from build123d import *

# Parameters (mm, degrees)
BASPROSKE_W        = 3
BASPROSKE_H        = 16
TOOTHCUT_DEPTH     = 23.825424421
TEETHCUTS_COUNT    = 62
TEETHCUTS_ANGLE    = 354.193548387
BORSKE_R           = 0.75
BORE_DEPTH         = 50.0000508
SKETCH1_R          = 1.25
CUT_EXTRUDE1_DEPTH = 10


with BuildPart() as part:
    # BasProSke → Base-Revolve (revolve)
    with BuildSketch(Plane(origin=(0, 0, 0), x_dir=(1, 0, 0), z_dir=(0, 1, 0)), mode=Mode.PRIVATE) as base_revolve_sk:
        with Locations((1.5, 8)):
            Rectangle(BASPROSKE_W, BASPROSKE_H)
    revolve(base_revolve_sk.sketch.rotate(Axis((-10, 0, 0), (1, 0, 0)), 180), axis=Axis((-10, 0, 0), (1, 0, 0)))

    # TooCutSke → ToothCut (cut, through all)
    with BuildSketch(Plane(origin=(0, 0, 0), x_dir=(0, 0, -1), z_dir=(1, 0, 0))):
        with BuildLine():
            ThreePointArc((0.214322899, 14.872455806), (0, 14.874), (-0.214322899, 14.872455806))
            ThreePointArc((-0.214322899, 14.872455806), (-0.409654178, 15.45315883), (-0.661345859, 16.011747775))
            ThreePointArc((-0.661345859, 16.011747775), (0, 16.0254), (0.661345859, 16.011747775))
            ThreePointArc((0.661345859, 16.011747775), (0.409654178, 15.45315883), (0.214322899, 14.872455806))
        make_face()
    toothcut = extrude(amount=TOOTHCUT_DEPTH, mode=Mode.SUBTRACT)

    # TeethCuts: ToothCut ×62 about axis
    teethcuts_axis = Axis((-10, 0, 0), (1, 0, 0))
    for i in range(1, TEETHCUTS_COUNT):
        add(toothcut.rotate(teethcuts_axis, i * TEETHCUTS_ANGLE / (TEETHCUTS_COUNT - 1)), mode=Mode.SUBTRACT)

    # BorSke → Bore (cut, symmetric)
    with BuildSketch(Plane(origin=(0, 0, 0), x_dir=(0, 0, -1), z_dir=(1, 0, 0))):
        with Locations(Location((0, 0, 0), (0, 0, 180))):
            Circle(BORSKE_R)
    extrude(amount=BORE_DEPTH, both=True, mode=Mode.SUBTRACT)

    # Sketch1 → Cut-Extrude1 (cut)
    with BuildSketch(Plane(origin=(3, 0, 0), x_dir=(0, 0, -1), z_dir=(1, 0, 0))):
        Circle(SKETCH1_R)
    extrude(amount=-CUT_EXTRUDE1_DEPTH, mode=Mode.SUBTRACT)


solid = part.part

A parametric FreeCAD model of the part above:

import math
import FreeCAD as App
import Part
import Sketcher
from FreeCAD import Vector

doc = App.newDocument("Part")
params = doc.addObject("Spreadsheet::Sheet", "Params")
for row, (alias, value) in enumerate([
    ("sketch1_width", "3 mm"),
    ("sketch1_height", "16 mm"),
    ("revolution_angle", "360 deg"),
    ("sketch2_radius", "6.2 mm"),
    ("sketch3_diameter", "1.5 mm"),
    ("pocket2_length", "100.000102 mm"),
    ("sketch4_diameter", "2.5 mm"),
    ("pocket3_length", "10 mm"),
], start=1):
    params.set(f"A{row}", alias)
    params.set(f"B{row}", "=" + value)
    params.setAlias(f"B{row}", alias)

body = doc.addObject("PartDesign::Body", "Body")

# Sketch on XZ plane
sketch1 = body.newObject("Sketcher::SketchObject", "Sketch")
sketch1.AttachmentSupport = (doc.getObject("XZ_Plane"), [""])
sketch1.MapMode = "FlatFace"
sketch1.addGeometry([
    Part.LineSegment(Vector(0, -16, 0), Vector(0, 0, 0)),
    Part.LineSegment(Vector(0, 0, 0), Vector(3, 0, 0)),
    Part.LineSegment(Vector(3, 0, 0), Vector(3, -16, 0)),
    Part.LineSegment(Vector(3, -16, 0), Vector(0, -16, 0)),
], False)
sketch1.addConstraint([
    Sketcher.Constraint("Coincident", 0, 2, 1, 1),
    Sketcher.Constraint("Coincident", 1, 2, 2, 1),
    Sketcher.Constraint("Coincident", 2, 2, 3, 1),
    Sketcher.Constraint("Coincident", 3, 2, 0, 1),
    Sketcher.Constraint("Vertical", 0),
    Sketcher.Constraint("Horizontal", 1),
    Sketcher.Constraint("Vertical", 2),
    Sketcher.Constraint("Horizontal", 3),
    Sketcher.Constraint("Coincident", 0, 2, -1, 1),
    Sketcher.Constraint("DistanceX", 1, 1, 1, 2, 3.0),
    Sketcher.Constraint("DistanceY", 0, 1, 0, 2, 16.0),
])
sketch1.setExpression("Constraints[9]", "Params.sketch1_width")
sketch1.setExpression("Constraints[10]", "Params.sketch1_height")
revolution = body.newObject("PartDesign::Revolution", "Revolution")
revolution.Profile = sketch1
revolution.ReferenceAxis = (sketch1, ["H_Axis"])
revolution.setExpression("Angle", "Params.revolution_angle")

# Sketch on YZ plane
sketch2 = body.newObject("Sketcher::SketchObject", "Sketch001")
sketch2.AttachmentSupport = (doc.getObject("YZ_Plane"), [""])
sketch2.MapMode = "FlatFace"
sketch2.addGeometry([
    Part.ArcOfCircle(Part.Circle(Vector(-0.000002, 0, 0), Vector(0, 0, 1), 14.874002), math.radians(-0.825617), math.radians(0.825617)),
    Part.ArcOfCircle(Part.Circle(Vector(13.188555, -6.181272, 0), Vector(0, 0, 1), 6.2), math.radians(62.912303), math.radians(74.240681)),
    Part.ArcOfCircle(Part.Circle(Vector(0, 0, 0), Vector(0, 0, 1), 16.0254), math.radians(-2.365188), math.radians(2.365188)),
    Part.ArcOfCircle(Part.Circle(Vector(13.188555, 6.181272, 0), Vector(0, 0, 1), 6.2), math.radians(-74.240681), math.radians(-62.912303)),
], False)
sketch2.addConstraint([
    Sketcher.Constraint("Coincident", 0, 1, 1, 2),
    Sketcher.Constraint("Coincident", 1, 1, 2, 1),
    Sketcher.Constraint("Coincident", 2, 2, 3, 2),
    Sketcher.Constraint("Coincident", 3, 1, 0, 2),
    Sketcher.Constraint("Coincident", 0, 3, -1, 1),
    Sketcher.Constraint("Coincident", 2, 3, -1, 1),
    Sketcher.Constraint("Equal", 1, 3),
    Sketcher.Constraint("Symmetric", 1, 3, 3, 3, -1),
    Sketcher.Constraint("Radius", 1, 6.2),
    Sketcher.Constraint("Radius", 2, 16.0254),
    Sketcher.Constraint("Radius", 0, 14.874002),
    Sketcher.Constraint("DistanceX", 1, 3, 0, 1, 1.683901),
    Sketcher.Constraint("DistanceY", 1, 3, -1, 1, 6.181272),
])
sketch2.setExpression("Constraints[8]", "Params.sketch2_radius")
pocket1 = body.newObject("PartDesign::Pocket", "Pocket")
pocket1.Profile = sketch2
pocket1.Type = "ThroughAll"
pocket1.Reversed = True
doc.recompute()

polarpattern = body.newObject("PartDesign::PolarPattern", "PolarPattern")
polarpattern.Originals = [pocket1]
polarpattern.Axis = (doc.getObject("X_Axis"), [""])
polarpattern.Angle = 360
polarpattern.Occurrences = 62
body.Tip = polarpattern

# Sketch on YZ plane
sketch3 = body.newObject("Sketcher::SketchObject", "Sketch002")
sketch3.AttachmentSupport = (doc.getObject("YZ_Plane"), [""])
sketch3.MapMode = "FlatFace"
sketch3.addGeometry(Part.Circle(Vector(0, 0, 0), Vector(0, 0, 1), 0.75), False)
sketch3.addConstraint([
    Sketcher.Constraint("Coincident", 0, 3, -1, 1),
    Sketcher.Constraint("Diameter", 0, 1.5),
])
sketch3.setExpression("Constraints[1]", "Params.sketch3_diameter")
pocket2 = body.newObject("PartDesign::Pocket", "Pocket001")
pocket2.Profile = sketch3
pocket2.setExpression("Length", "Params.pocket2_length")
pocket2.Midplane = True

# Sketch on YZ plane
sketch4 = body.newObject("Sketcher::SketchObject", "Sketch003")
sketch4.AttachmentSupport = (doc.getObject("YZ_Plane"), [""])
sketch4.MapMode = "FlatFace"
sketch4.AttachmentOffset = App.Placement(Vector(0, 0, 3), App.Rotation())
sketch4.addGeometry(Part.Circle(Vector(0, 0, 0), Vector(0, 0, 1), 1.25), False)
sketch4.addConstraint([
    Sketcher.Constraint("Coincident", 0, 3, -1, 1),
    Sketcher.Constraint("Diameter", 0, 2.5),
])
sketch4.setExpression("Constraints[1]", "Params.sketch4_diameter")
pocket3 = body.newObject("PartDesign::Pocket", "Pocket002")
pocket3.Profile = sketch4
pocket3.setExpression("Length", "Params.pocket3_length")

doc.recompute()
